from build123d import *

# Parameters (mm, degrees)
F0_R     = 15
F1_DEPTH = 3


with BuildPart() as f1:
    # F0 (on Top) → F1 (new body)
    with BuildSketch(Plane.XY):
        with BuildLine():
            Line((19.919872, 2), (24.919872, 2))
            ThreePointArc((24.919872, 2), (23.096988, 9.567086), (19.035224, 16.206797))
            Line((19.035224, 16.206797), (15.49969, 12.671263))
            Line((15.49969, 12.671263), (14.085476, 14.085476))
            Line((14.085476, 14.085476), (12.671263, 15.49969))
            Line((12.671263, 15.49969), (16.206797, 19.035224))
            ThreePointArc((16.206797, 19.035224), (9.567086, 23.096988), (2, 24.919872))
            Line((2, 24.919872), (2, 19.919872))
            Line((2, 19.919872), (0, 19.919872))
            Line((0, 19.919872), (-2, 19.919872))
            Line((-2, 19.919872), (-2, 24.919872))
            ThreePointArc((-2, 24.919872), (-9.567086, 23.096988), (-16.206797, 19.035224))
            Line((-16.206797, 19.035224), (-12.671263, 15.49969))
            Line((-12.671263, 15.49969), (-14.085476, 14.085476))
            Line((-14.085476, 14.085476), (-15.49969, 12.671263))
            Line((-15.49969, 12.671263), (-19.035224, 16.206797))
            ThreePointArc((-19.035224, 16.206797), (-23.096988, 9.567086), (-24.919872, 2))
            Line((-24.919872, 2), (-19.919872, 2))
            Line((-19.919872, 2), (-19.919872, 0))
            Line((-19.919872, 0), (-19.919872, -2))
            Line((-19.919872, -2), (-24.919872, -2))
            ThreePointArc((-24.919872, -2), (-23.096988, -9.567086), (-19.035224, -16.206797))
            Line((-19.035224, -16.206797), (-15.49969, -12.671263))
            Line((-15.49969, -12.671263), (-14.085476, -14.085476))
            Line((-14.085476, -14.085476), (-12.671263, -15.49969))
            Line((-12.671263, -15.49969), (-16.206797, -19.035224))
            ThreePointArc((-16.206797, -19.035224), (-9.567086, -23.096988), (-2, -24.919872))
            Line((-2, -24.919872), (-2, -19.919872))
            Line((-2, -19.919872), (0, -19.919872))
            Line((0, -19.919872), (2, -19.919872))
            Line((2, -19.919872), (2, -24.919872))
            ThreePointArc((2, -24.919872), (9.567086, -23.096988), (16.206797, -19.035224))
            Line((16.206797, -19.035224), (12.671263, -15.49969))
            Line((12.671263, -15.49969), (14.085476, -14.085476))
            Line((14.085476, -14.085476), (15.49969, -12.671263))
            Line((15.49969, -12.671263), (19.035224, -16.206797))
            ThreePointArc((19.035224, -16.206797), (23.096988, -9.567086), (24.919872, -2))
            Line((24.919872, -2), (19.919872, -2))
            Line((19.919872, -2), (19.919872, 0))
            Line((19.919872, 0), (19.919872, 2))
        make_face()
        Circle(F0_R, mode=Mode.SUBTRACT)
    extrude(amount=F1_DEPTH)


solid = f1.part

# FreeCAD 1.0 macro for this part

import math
import FreeCAD as App
import Part
import Sketcher

doc = App.newDocument("Part")
body = doc.addObject("PartDesign::Body", "Body")

sketch1 = body.newObject("Sketcher::SketchObject", "Sketch")
sketch1.AttachmentSupport = (doc.getObject("XY_Plane"), [""])
sketch1.MapMode = "FlatFace"
sketch1.addGeometry([
    Part.LineSegment(App.Vector(19.919872, 2, 0), App.Vector(24.919872, 2, 0)),
    Part.ArcOfCircle(Part.Circle(App.Vector(-0.000012, -0.000005, 0), App.Vector(0, 0, 1), 25.000013), math.radians(4.588575), math.radians(40.411425)),
    Part.LineSegment(App.Vector(19.035224, 16.206797, 0), App.Vector(15.49969, 12.671263, 0)),
    Part.LineSegment(App.Vector(15.49969, 12.671263, 0), App.Vector(14.085476, 14.085476, 0)),
    Part.LineSegment(App.Vector(14.085476, 14.085476, 0), App.Vector(12.671263, 15.49969, 0)),
    Part.LineSegment(App.Vector(12.671263, 15.49969, 0), App.Vector(16.206797, 19.035224, 0)),
    Part.ArcOfCircle(Part.Circle(App.Vector(-0.000005, -0.000012, 0), App.Vector(0, 0, 1), 25.000013), math.radians(49.588575), math.radians(85.411425)),
    Part.LineSegment(App.Vector(2, 24.919872, 0), App.Vector(2, 19.919872, 0)),
    Part.LineSegment(App.Vector(2, 19.919872, 0), App.Vector(-2, 19.919872, 0)),
    Part.LineSegment(App.Vector(-2, 19.919872, 0), App.Vector(-2, 24.919872, 0)),
    Part.ArcOfCircle(Part.Circle(App.Vector(0.000005, -0.000012, 0), App.Vector(0, 0, 1), 25.000013), math.radians(94.588575), math.radians(130.411425)),
    Part.LineSegment(App.Vector(-16.206797, 19.035224, 0), App.Vector(-12.671263, 15.49969, 0)),
    Part.LineSegment(App.Vector(-12.671263, 15.49969, 0), App.Vector(-14.085476, 14.085476, 0)),
    Part.LineSegment(App.Vector(-14.085476, 14.085476, 0), App.Vector(-15.49969, 12.671263, 0)),
    Part.LineSegment(App.Vector(-15.49969, 12.671263, 0), App.Vector(-19.035224, 16.206797, 0)),
    Part.ArcOfCircle(Part.Circle(App.Vector(0.000012, -0.000005, 0), App.Vector(0, 0, 1), 25.000013), math.radians(139.588575), math.radians(175.411425)),
    Part.LineSegment(App.Vector(-24.919872, 2, 0), App.Vector(-19.919872, 2, 0)),
    Part.LineSegment(App.Vector(-19.919872, 2, 0), App.Vector(-19.919872, -2, 0)),
    Part.LineSegment(App.Vector(-19.919872, -2, 0), App.Vector(-24.919872, -2, 0)),
    Part.ArcOfCircle(Part.Circle(App.Vector(0.000012, 0.000005, 0), App.Vector(0, 0, 1), 25.000013), math.radians(-175.411425), math.radians(-139.588575)),
    Part.LineSegment(App.Vector(-19.035224, -16.206797, 0), App.Vector(-15.49969, -12.671263, 0)),
    Part.LineSegment(App.Vector(-15.49969, -12.671263, 0), App.Vector(-14.085476, -14.085476, 0)),
    Part.LineSegment(App.Vector(-14.085476, -14.085476, 0), App.Vector(-12.671263, -15.49969, 0)),
    Part.LineSegment(App.Vector(-12.671263, -15.49969, 0), App.Vector(-16.206797, -19.035224, 0)),
    Part.ArcOfCircle(Part.Circle(App.Vector(0.000005, 0.000012, 0), App.Vector(0, 0, 1), 25.000013), math.radians(-130.411425), math.radians(-94.588575)),
    Part.LineSegment(App.Vector(-2, -24.919872, 0), App.Vector(-2, -19.919872, 0)),
    Part.LineSegment(App.Vector(-2, -19.919872, 0), App.Vector(2, -19.919872, 0)),
    Part.LineSegment(App.Vector(2, -19.919872, 0), App.Vector(2, -24.919872, 0)),
    Part.ArcOfCircle(Part.Circle(App.Vector(-0.000005, 0.000012, 0), App.Vector(0, 0, 1), 25.000013), math.radians(-85.411425), math.radians(-49.588575)),
    Part.LineSegment(App.Vector(16.206797, -19.035224, 0), App.Vector(12.671263, -15.49969, 0)),
    Part.LineSegment(App.Vector(12.671263, -15.49969, 0), App.Vector(14.085476, -14.085476, 0)),
    Part.LineSegment(App.Vector(14.085476, -14.085476, 0), App.Vector(15.49969, -12.671263, 0)),
    Part.LineSegment(App.Vector(15.49969, -12.671263, 0), App.Vector(19.035224, -16.206797, 0)),
    Part.ArcOfCircle(Part.Circle(App.Vector(-0.000012, 0.000005, 0), App.Vector(0, 0, 1), 25.000013), math.radians(-40.411425), math.radians(-4.588575)),
    Part.LineSegment(App.Vector(24.919872, -2, 0), App.Vector(19.919872, -2, 0)),
    Part.LineSegment(App.Vector(19.919872, -2, 0), App.Vector(19.919872, 2, 0)),
    Part.Circle(App.Vector(0, 0, 0), App.Vector(0, 0, 1), 15),
], False)
sketch1.addConstraint([
    Sketcher.Constraint("Coincident", 0, 2, 1, 1),
    Sketcher.Constraint("Coincident", 1, 2, 2, 1),
    Sketcher.Constraint("Coincident", 2, 2, 3, 1),
    Sketcher.Constraint("Coincident", 3, 2, 4, 1),
    Sketcher.Constraint("Coincident", 4, 2, 5, 1),
    Sketcher.Constraint("Coincident", 5, 2, 6, 1),
    Sketcher.Constraint("Coincident", 6, 2, 7, 1),
    Sketcher.Constraint("Coincident", 7, 2, 8, 1),
    Sketcher.Constraint("Coincident", 8, 2, 9, 1),
    Sketcher.Constraint("Coincident", 9, 2, 10, 1),
    Sketcher.Constraint("Coincident", 10, 2, 11, 1),
    Sketcher.Constraint("Coincident", 11, 2, 12, 1),
    Sketcher.Constraint("Coincident", 12, 2, 13, 1),
    Sketcher.Constraint("Coincident", 13, 2, 14, 1),
    Sketcher.Constraint("Coincident", 14, 2, 15, 1),
    Sketcher.Constraint("Coincident", 15, 2, 16, 1),
    Sketcher.Constraint("Coincident", 16, 2, 17, 1),
    Sketcher.Constraint("Coincident", 17, 2, 18, 1),
    Sketcher.Constraint("Coincident", 18, 2, 19, 1),
    Sketcher.Constraint("Coincident", 19, 2, 20, 1),
    Sketcher.Constraint("Coincident", 20, 2, 21, 1),
    Sketcher.Constraint("Coincident", 21, 2, 22, 1),
    Sketcher.Constraint("Coincident", 22, 2, 23, 1),
    Sketcher.Constraint("Coincident", 23, 2, 24, 1),
    Sketcher.Constraint("Coincident", 24, 2, 25, 1),
    Sketcher.Constraint("Coincident", 25, 2, 26, 1),
    Sketcher.Constraint("Coincident", 26, 2, 27, 1),
    Sketcher.Constraint("Coincident", 27, 2, 28, 1),
    Sketcher.Constraint("Coincident", 28, 2, 29, 1),
    Sketcher.Constraint("Coincident", 29, 2, 30, 1),
    Sketcher.Constraint("Coincident", 30, 2, 31, 1),
    Sketcher.Constraint("Coincident", 31, 2, 32, 1),
    Sketcher.Constraint("Coincident", 32, 2, 33, 1),
    Sketcher.Constraint("Coincident", 33, 2, 34, 1),
    Sketcher.Constraint("Coincident", 34, 2, 35, 1),
    Sketcher.Constraint("Coincident", 35, 2, 0, 1),
    Sketcher.Constraint("Horizontal", 0),
    Sketcher.Constraint("Vertical", 7),
    Sketcher.Constraint("Horizontal", 8),
    Sketcher.Constraint("Vertical", 9),
    Sketcher.Constraint("Horizontal", 16),
    Sketcher.Constraint("Vertical", 17),
    Sketcher.Constraint("Horizontal", 18),
    Sketcher.Constraint("Vertical", 25),
    Sketcher.Constraint("Horizontal", 26),
    Sketcher.Constraint("Vertical", 27),
    Sketcher.Constraint("Horizontal", 34),
    Sketcher.Constraint("Vertical", 35),
    Sketcher.Constraint("Coincident", 36, 3, -1, 1),
    Sketcher.Constraint("Equal", 1, 6),
    Sketcher.Constraint("Equal", 6, 10),
    Sketcher.Constraint("Equal", 10, 15),
    Sketcher.Constraint("Equal", 15, 19),
    Sketcher.Constraint("Equal", 19, 24),
    Sketcher.Constraint("Equal", 24, 28),
    Sketcher.Constraint("Equal", 28, 33),
    Sketcher.Constraint("Symmetric", 1, 3, 19, 3, -1, 1),
    Sketcher.Constraint("Symmetric", 6, 3, 24, 3, -1, 1),
    Sketcher.Constraint("Symmetric", 10, 3, 28, 3, -1, 1),
    Sketcher.Constraint("Symmetric", 15, 3, 33, 3, -1, 1),
    Sketcher.Constraint("Symmetric", 2, 2, 20, 2, -1, 1),
    Sketcher.Constraint("Symmetric", 3, 2, 21, 2, -1, 1),
    Sketcher.Constraint("Symmetric", 4, 2, 22, 2, -1, 1),
    Sketcher.Constraint("Symmetric", 7, 2, 25, 2, -1, 1),
    Sketcher.Constraint("Symmetric", 11, 2, 29, 2, -1, 1),
    Sketcher.Constraint("Symmetric", 12, 2, 30, 2, -1, 1),
    Sketcher.Constraint("Symmetric", 13, 2, 31, 2, -1, 1),
    Sketcher.Constraint("Symmetric", 16, 2, 34, 2, -1, 1),
    Sketcher.Constraint("Symmetric", 6, 3, 10, 3, -2),
    Sketcher.Constraint("Symmetric", 1, 3, 15, 3, -2),
    Sketcher.Constraint("Symmetric", 4, 2, 11, 2, -2),
    Sketcher.Constraint("Symmetric", 3, 2, 12, 2, -2),
    Sketcher.Constraint("Symmetric", 2, 2, 13, 2, -2),
    Sketcher.Constraint("Perpendicular", 2, 3),
    Sketcher.Constraint("Parallel", 3, 4),
    Sketcher.Constraint("Perpendicular", 4, 5),
    Sketcher.Constraint("Perpendicular", 5, 11),
    Sketcher.Constraint("Perpendicular", 11, 12),
    Sketcher.Constraint("Perpendicular", 13, 14),
    Sketcher.Constraint("Perpendicular", 14, 20),
    Sketcher.Constraint("Perpendicular", 22, 23),
    Sketcher.Constraint("Perpendicular", 23, 29),
    Sketcher.Constraint("Perpendicular", 31, 32),
    Sketcher.Constraint("Horizontal", 6, 2, 9, 2),
    Sketcher.Constraint("Horizontal", 0, 2, 15, 2),
    Sketcher.Constraint("Horizontal", 24, 2, 27, 2),
    Sketcher.Constraint("Horizontal", 18, 2, 33, 2),
    Sketcher.Constraint("Equal", 34, 7),
    Sketcher.Constraint("Equal", 26, 17),
    Sketcher.Constraint("Equal", 3, 4),
    Sketcher.Constraint("Equal", 2, 5),
    Sketcher.Constraint("Diameter", 36, 30.0),
    Sketcher.Constraint("DistanceX", 0, 1, 0, 2, 5.0),
    Sketcher.Constraint("DistanceX", 8, 2, 8, 1, 4.0),
    Sketcher.Constraint("Distance", 2, 5.0),
    Sketcher.Constraint("Distance", 3, 2.0),
    Sketcher.Constraint("Radius", 1, 25.000013),
    Sketcher.Constraint("DistanceX", -1, 1, 2, 2, 15.49969),
    Sketcher.Constraint("DistanceY", -1, 1, 4, 2, 15.49969),
    Sketcher.Constraint("DistanceX", 19, 3, 0, 2, 24.91986),
    Sketcher.Constraint("DistanceX", 24, 3, 1, 2, 19.035219),
])
pad1 = body.newObject("PartDesign::Pad", "Pad")
pad1.Profile = sketch1
pad1.Length = 3

doc.recompute()
